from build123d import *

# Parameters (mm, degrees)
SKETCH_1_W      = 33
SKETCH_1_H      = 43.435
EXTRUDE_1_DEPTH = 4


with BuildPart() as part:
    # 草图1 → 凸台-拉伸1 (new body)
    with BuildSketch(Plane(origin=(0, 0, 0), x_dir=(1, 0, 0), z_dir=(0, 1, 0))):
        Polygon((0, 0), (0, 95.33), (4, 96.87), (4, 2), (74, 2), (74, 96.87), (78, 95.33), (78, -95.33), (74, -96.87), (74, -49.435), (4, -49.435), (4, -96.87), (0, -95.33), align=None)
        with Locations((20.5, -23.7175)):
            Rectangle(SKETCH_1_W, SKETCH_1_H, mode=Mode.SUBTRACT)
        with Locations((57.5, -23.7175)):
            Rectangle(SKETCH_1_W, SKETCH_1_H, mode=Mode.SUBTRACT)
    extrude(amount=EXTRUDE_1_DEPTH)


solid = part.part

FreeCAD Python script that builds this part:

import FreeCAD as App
import Part
import Sketcher
from FreeCAD import Vector


def add_polygon(sketch, points):
    """Adds a closed chain of lines whose ends are joined by coincident constraints."""
    first, n = sketch.GeometryCount, len(points)
    for a, b in zip(points, points[1:] + points[:1]):
        sketch.addGeometry(Part.LineSegment(App.Vector(*a, 0), App.Vector(*b, 0)), False)
    for i in range(n):
        sketch.addConstraint(Sketcher.Constraint("Coincident", first + i, 2, first + (i + 1) % n, 1))

doc = App.newDocument("Part")
body = doc.addObject("PartDesign::Body", "Body")

# Sketch on XZ plane
sketch1 = body.newObject("Sketcher::SketchObject", "Sketch")
sketch1.AttachmentSupport = (doc.getObject("XZ_Plane"), [""])
sketch1.MapMode = "FlatFace"
add_polygon(sketch1, [(0, -95.33), (0, 95.33), (4, 96.87), (4, 49.435), (74, 49.435), (74, 96.87), (78, 95.33), (78, -95.33), (74, -96.87), (74, -2), (4, -2), (4, -96.87)])  # lines 0-11
add_polygon(sketch1, [(41, 45.435), (41, 2), (74, 2), (74, 45.435)])  # lines 12-15
add_polygon(sketch1, [(4, 45.435), (4, 2), (37, 2), (37, 45.435)])  # lines 16-19
sketch1.addConstraint(Sketcher.Constraint("Vertical", 0))
sketch1.addConstraint(Sketcher.Constraint("Vertical", 2))
sketch1.addConstraint(Sketcher.Constraint("Horizontal", 3))
sketch1.addConstraint(Sketcher.Constraint("Vertical", 4))
sketch1.addConstraint(Sketcher.Constraint("Vertical", 6))
sketch1.addConstraint(Sketcher.Constraint("Vertical", 8))
sketch1.addConstraint(Sketcher.Constraint("Horizontal", 9))
sketch1.addConstraint(Sketcher.Constraint("Vertical", 10))
sketch1.addConstraint(Sketcher.Constraint("Vertical", 12))
sketch1.addConstraint(Sketcher.Constraint("Horizontal", 13))
sketch1.addConstraint(Sketcher.Constraint("Vertical", 14))
sketch1.addConstraint(Sketcher.Constraint("Horizontal", 15))
sketch1.addConstraint(Sketcher.Constraint("Vertical", 16))
sketch1.addConstraint(Sketcher.Constraint("Horizontal", 17))
sketch1.addConstraint(Sketcher.Constraint("Vertical", 18))
sketch1.addConstraint(Sketcher.Constraint("Horizontal", 19))
sketch1.addConstraint(Sketcher.Constraint("Symmetric", 0, 2, 11, 2, -1, 1))
sketch1.addConstraint(Sketcher.Constraint("Symmetric", 4, 2, 7, 2, -1))
sketch1.addConstraint(Sketcher.Constraint("Symmetric", 1, 2, 10, 2, -1))
sketch1.addConstraint(Sketcher.Constraint("Symmetric", 8, 2, 13, 2, -1))
sketch1.addConstraint(Sketcher.Constraint("Symmetric", 9, 2, 16, 2, -1))
sketch1.addConstraint(Sketcher.Constraint("Parallel", 1, 7))
sketch1.addConstraint(Sketcher.Constraint("Parallel", 5, 11))
sketch1.addConstraint(Sketcher.Constraint("Horizontal", 1, 2, 4, 2))
sketch1.addConstraint(Sketcher.Constraint("Horizontal", 0, 2, 5, 2))
sketch1.addConstraint(Sketcher.Constraint("Horizontal", 15, 2, 18, 2))
sketch1.addConstraint(Sketcher.Constraint("Equal", 15, 17))
sketch1.addConstraint(Sketcher.Constraint("DistanceX", 3, 1, 3, 2, 70.0))
sketch1.addConstraint(Sketcher.Constraint("DistanceX", 13, 1, 13, 2, 33.0))
sketch1.addConstraint(Sketcher.Constraint("DistanceX", -1, 1, 1, 2, 4.0))
sketch1.addConstraint(Sketcher.Constraint("DistanceY", 8, 2, -1, 1, 2.0))
sketch1.addConstraint(Sketcher.Constraint("DistanceY", 14, 2, 3, 2, 4.0))
sketch1.addConstraint(Sketcher.Constraint("DistanceY", 0, 1, 0, 2, 190.66))
sketch1.addConstraint(Sketcher.Constraint("DistanceY", 8, 1, 8, 2, 94.87))
sketch1.addConstraint(Sketcher.Constraint("DistanceY", 2, 2, 2, 1, 47.435))
pad1 = body.newObject("PartDesign::Pad", "Pad")
pad1.Profile = sketch1
pad1.Length = 4
pad1.Reversed = True

doc.recompute()
